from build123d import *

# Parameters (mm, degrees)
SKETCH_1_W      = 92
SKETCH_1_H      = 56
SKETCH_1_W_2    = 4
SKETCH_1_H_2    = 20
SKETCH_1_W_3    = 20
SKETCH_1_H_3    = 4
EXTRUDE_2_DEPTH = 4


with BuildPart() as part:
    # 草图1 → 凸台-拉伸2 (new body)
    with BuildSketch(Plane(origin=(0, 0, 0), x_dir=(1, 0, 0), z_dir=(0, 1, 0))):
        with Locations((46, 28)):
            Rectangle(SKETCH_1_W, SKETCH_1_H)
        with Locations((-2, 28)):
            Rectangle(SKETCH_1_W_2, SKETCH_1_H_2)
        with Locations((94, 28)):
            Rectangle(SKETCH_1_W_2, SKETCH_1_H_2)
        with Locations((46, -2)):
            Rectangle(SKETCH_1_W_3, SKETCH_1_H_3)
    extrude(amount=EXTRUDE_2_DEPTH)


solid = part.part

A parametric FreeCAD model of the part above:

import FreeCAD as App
import Part
import Sketcher

V = App.Vector

doc = App.newDocument("Part")
body = doc.addObject("PartDesign::Body", "Body")

# Sketch on XZ plane
sketch1 = doc.addObject("Sketcher::SketchObject", "Sketch")
body.addObject(sketch1)
sketch1.AttachmentSupport = (doc.XZ_Plane, [""])
sketch1.MapMode = "FlatFace"
sketch1.addGeometry([
    Part.LineSegment(V(0, -18, 0), V(0, 0, 0)),  # 0
    Part.LineSegment(V(0, 0, 0), V(36, 0, 0)),  # 1
    Part.LineSegment(V(36, 0, 0), V(36, 4, 0)),  # 2
    Part.LineSegment(V(36, 4, 0), V(56, 4, 0)),  # 3
    Part.LineSegment(V(56, 4, 0), V(56, 0, 0)),  # 4
    Part.LineSegment(V(56, 0, 0), V(92, 0, 0)),  # 5
    Part.LineSegment(V(92, 0, 0), V(92, -18, 0)),  # 6
    Part.LineSegment(V(92, -18, 0), V(96, -18, 0)),  # 7
    Part.LineSegment(V(96, -18, 0), V(96, -38, 0)),  # 8
    Part.LineSegment(V(96, -38, 0), V(92, -38, 0)),  # 9
    Part.LineSegment(V(92, -38, 0), V(92, -56, 0)),  # 10
    Part.LineSegment(V(92, -56, 0), V(0, -56, 0)),  # 11
    Part.LineSegment(V(0, -56, 0), V(0, -38, 0)),  # 12
    Part.LineSegment(V(0, -38, 0), V(-4, -38, 0)),  # 13
    Part.LineSegment(V(-4, -38, 0), V(-4, -18, 0)),  # 14
    Part.LineSegment(V(-4, -18, 0), V(0, -18, 0)),  # 15
], False)
sketch1.addConstraint([
    Sketcher.Constraint("Coincident", 0, 2, 1, 1),
    Sketcher.Constraint("Coincident", 1, 2, 2, 1),
    Sketcher.Constraint("Coincident", 2, 2, 3, 1),
    Sketcher.Constraint("Coincident", 3, 2, 4, 1),
    Sketcher.Constraint("Coincident", 4, 2, 5, 1),
    Sketcher.Constraint("Coincident", 5, 2, 6, 1),
    Sketcher.Constraint("Coincident", 6, 2, 7, 1),
    Sketcher.Constraint("Coincident", 7, 2, 8, 1),
    Sketcher.Constraint("Coincident", 8, 2, 9, 1),
    Sketcher.Constraint("Coincident", 9, 2, 10, 1),
    Sketcher.Constraint("Coincident", 10, 2, 11, 1),
    Sketcher.Constraint("Coincident", 11, 2, 12, 1),
    Sketcher.Constraint("Coincident", 12, 2, 13, 1),
    Sketcher.Constraint("Coincident", 13, 2, 14, 1),
    Sketcher.Constraint("Coincident", 14, 2, 15, 1),
    Sketcher.Constraint("Coincident", 15, 2, 0, 1),
    Sketcher.Constraint("Vertical", 0),
    Sketcher.Constraint("Horizontal", 1),
    Sketcher.Constraint("Vertical", 2),
    Sketcher.Constraint("Horizontal", 3),
    Sketcher.Constraint("Vertical", 4),
    Sketcher.Constraint("Horizontal", 5),
    Sketcher.Constraint("Vertical", 6),
    Sketcher.Constraint("Horizontal", 7),
    Sketcher.Constraint("Vertical", 8),
    Sketcher.Constraint("Horizontal", 9),
    Sketcher.Constraint("Vertical", 10),
    Sketcher.Constraint("Horizontal", 11),
    Sketcher.Constraint("Vertical", 12),
    Sketcher.Constraint("Horizontal", 13),
    Sketcher.Constraint("Vertical", 14),
    Sketcher.Constraint("Horizontal", 15),
    Sketcher.Constraint("Coincident", 0, 2, -1, 1),
    Sketcher.Constraint("PointOnObject", 4, 2, -1),
    Sketcher.Constraint("PointOnObject", 11, 2, -2),
    Sketcher.Constraint("Horizontal", 9, 2, 12, 2),
    Sketcher.Constraint("Horizontal", 7, 2, 14, 2),
    Sketcher.Constraint("Vertical", 6, 2, 9, 2),
    Sketcher.Constraint("Equal", 1, 5),
    Sketcher.Constraint("Equal", 9, 13),
    Sketcher.Constraint("Equal", 15, 2),
    Sketcher.Constraint("Equal", 3, 8),
    Sketcher.Constraint("Equal", 6, 10),
    Sketcher.Constraint("DistanceX", 1, 1, 1, 2, 36.0),
    Sketcher.Constraint("DistanceX", 3, 1, 3, 2, 20.0),
    Sketcher.Constraint("DistanceX", 7, 1, 7, 2, 4.0),
    Sketcher.Constraint("DistanceY", 0, 1, 0, 2, 18.0),
])
pad1 = doc.addObject("PartDesign::Pad", "Pad")
body.addObject(pad1)
pad1.Profile = sketch1
pad1.Length = 4
pad1.Reversed = True

doc.recompute()
